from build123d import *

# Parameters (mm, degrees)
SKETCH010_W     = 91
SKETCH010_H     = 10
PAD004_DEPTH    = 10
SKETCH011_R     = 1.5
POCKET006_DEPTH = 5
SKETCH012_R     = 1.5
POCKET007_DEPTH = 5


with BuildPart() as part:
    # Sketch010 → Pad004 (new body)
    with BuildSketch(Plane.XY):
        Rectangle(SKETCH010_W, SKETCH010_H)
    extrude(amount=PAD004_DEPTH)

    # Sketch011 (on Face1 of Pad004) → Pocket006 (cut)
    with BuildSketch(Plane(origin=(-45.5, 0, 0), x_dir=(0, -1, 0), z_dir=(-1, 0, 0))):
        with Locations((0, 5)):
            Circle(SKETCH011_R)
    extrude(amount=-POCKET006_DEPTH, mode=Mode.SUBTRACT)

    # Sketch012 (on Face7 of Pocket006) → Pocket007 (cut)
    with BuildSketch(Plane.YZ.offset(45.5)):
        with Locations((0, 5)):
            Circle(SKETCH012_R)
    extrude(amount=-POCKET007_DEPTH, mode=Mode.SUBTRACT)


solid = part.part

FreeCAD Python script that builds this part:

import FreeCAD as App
import Part
import Sketcher

V = App.Vector


def add_polygon(sketch, points):
    """Adds a closed chain of lines whose ends are joined by coincident constraints."""
    first, n = sketch.GeometryCount, len(points)
    for a, b in zip(points, points[1:] + points[:1]):
        sketch.addGeometry(Part.LineSegment(App.Vector(*a, 0), App.Vector(*b, 0)), False)
    for i in range(n):
        sketch.addConstraint(Sketcher.Constraint("Coincident", first + i, 2, first + (i + 1) % n, 1))

doc = App.newDocument("Part")
body = doc.addObject("PartDesign::Body", "Body")

sketch1 = body.newObject("Sketcher::SketchObject", "Sketch")
sketch1.AttachmentSupport = (doc.getObject("XY_Plane"), [""])
sketch1.MapMode = "FlatFace"
add_polygon(sketch1, [(-46, 5), (-46, -5), (46, -5), (46, 5)])
sketch1.addConstraint([
    Sketcher.Constraint("Vertical", 0),
    Sketcher.Constraint("Horizontal", 1),
    Sketcher.Constraint("Vertical", 2),
    Sketcher.Constraint("Horizontal", 3),
    Sketcher.Constraint("Symmetric", 0, 2, 2, 2, -1, 1),
    Sketcher.Constraint("DistanceX", 1, 1, 1, 2, 91.0),
    Sketcher.Constraint("DistanceY", 0, 2, 0, 1, 10.0),
])
pad1 = body.newObject("PartDesign::Pad", "Pad")
pad1.Profile = sketch1
pad1.Length = 10

sketch2 = body.newObject("Sketcher::SketchObject", "Sketch001")
sketch2.AttachmentSupport = (doc.getObject("YZ_Plane"), [""])
sketch2.MapMode = "FlatFace"
sketch2.AttachmentOffset = App.Placement(V(0, 0, -45.5), App.Rotation())
sketch2.addGeometry(Part.Circle(V(0, 5, 0), V(0, 0, 1), 1.5), False)
sketch2.addConstraint([
    Sketcher.Constraint("PointOnObject", 0, 3, -2),
    Sketcher.Constraint("Diameter", 0, 3.0),
    Sketcher.Constraint("DistanceY", -1, 1, 0, 3, 5.0),
])
pocket1 = body.newObject("PartDesign::Pocket", "Pocket")
pocket1.Profile = sketch2
pocket1.Length = 5
pocket1.Reversed = True

sketch3 = body.newObject("Sketcher::SketchObject", "Sketch002")
sketch3.AttachmentSupport = (doc.getObject("YZ_Plane"), [""])
sketch3.MapMode = "FlatFace"
sketch3.AttachmentOffset = App.Placement(V(0, 0, 45.5), App.Rotation())
sketch3.addGeometry(Part.Circle(V(0, 5, 0), V(0, 0, 1), 1.5), False)
sketch3.addConstraint([
    Sketcher.Constraint("PointOnObject", 0, 3, -2),
    Sketcher.Constraint("Diameter", 0, 3.0),
    Sketcher.Constraint("DistanceY", -1, 1, 0, 3, 5.0),
])
pocket2 = body.newObject("PartDesign::Pocket", "Pocket001")
pocket2.Profile = sketch3
pocket2.Length = 5

doc.recompute()
